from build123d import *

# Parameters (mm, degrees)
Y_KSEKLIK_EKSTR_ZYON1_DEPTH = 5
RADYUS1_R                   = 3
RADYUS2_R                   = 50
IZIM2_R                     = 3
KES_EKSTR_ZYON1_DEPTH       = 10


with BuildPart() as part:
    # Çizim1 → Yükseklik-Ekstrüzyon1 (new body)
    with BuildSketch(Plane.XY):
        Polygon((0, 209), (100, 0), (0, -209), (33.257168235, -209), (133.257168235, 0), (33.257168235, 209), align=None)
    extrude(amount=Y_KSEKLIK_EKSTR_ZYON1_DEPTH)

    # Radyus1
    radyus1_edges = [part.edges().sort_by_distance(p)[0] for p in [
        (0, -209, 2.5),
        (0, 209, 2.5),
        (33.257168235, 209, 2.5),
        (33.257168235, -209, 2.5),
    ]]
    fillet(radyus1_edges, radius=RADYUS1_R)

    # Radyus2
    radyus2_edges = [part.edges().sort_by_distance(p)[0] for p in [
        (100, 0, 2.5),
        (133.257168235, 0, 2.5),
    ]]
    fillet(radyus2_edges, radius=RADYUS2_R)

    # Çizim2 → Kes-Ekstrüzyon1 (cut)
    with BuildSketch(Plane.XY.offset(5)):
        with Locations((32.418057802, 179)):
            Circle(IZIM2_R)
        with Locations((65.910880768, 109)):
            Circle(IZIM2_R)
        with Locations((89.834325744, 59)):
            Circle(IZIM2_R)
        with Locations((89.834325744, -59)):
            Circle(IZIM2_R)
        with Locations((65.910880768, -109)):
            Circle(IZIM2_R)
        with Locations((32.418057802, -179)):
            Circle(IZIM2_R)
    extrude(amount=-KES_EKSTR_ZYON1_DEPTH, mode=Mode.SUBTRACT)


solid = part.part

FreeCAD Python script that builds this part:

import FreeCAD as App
import Part
import Sketcher
from FreeCAD import Vector


def edges_at(feature, points):
    """Names of the edges that pass closest to the given points."""
    edges = feature.Shape.Edges
    near = lambda p: min(range(len(edges)), key=lambda i: edges[i].distToShape(Part.Vertex(*p))[0])
    return sorted({f"Edge{near(p) + 1}" for p in points})

doc = App.newDocument("Part")
body = doc.addObject("PartDesign::Body", "Body")

# Sketch on XY plane
sketch1 = body.newObject("Sketcher::SketchObject", "Sketch")
sketch1.AttachmentSupport = (doc.getObject("XY_Plane"), [""])
sketch1.MapMode = "FlatFace"
sketch1.addGeometry(Part.LineSegment(Vector(0, 209, 0), Vector(100, 0, 0)), False)
sketch1.addGeometry(Part.LineSegment(Vector(100, 0, 0), Vector(0, -209, 0)), False)
sketch1.addGeometry(Part.LineSegment(Vector(0, -209, 0), Vector(33, -209, 0)), False)
sketch1.addGeometry(Part.LineSegment(Vector(33, -209, 0), Vector(133, 0, 0)), False)
sketch1.addGeometry(Part.LineSegment(Vector(133, 0, 0), Vector(33, 209, 0)), False)
sketch1.addGeometry(Part.LineSegment(Vector(33, 209, 0), Vector(0, 209, 0)), False)
sketch1.addConstraint(Sketcher.Constraint("Coincident", 0, 2, 1, 1))
sketch1.addConstraint(Sketcher.Constraint("Coincident", 1, 2, 2, 1))
sketch1.addConstraint(Sketcher.Constraint("Coincident", 2, 2, 3, 1))
sketch1.addConstraint(Sketcher.Constraint("Coincident", 3, 2, 4, 1))
sketch1.addConstraint(Sketcher.Constraint("Coincident", 4, 2, 5, 1))
sketch1.addConstraint(Sketcher.Constraint("Coincident", 5, 2, 0, 1))
sketch1.addConstraint(Sketcher.Constraint("Horizontal", 2))
sketch1.addConstraint(Sketcher.Constraint("Horizontal", 5))
sketch1.addConstraint(Sketcher.Constraint("Symmetric", 1, 2, 5, 2, -1, 1))
sketch1.addConstraint(Sketcher.Constraint("PointOnObject", 0, 2, -1))
sketch1.addConstraint(Sketcher.Constraint("PointOnObject", 1, 2, -2))
sketch1.addConstraint(Sketcher.Constraint("PointOnObject", 3, 2, -1))
sketch1.addConstraint(Sketcher.Constraint("Parallel", 1, 3))
sketch1.addConstraint(Sketcher.Constraint("Parallel", 0, 4))
sketch1.addConstraint(Sketcher.Constraint("DistanceX", -1, 1, 0, 2, 100.0))
sketch1.addConstraint(Sketcher.Constraint("DistanceY", 1, 2, -1, 1, 209.0))
sketch1.addConstraint(Sketcher.Constraint("DistanceX", 2, 1, 2, 2, 33.257168))
pad1 = body.newObject("PartDesign::Pad", "Pad")
pad1.Profile = sketch1
pad1.Length = 5
doc.recompute()

fillet = body.newObject("PartDesign::Fillet", "Fillet")
fillet.Base = (pad1, edges_at(pad1, [
    (0, -209, 2.5),
    (0, 209, 2.5),
    (33.257, 209, 2.5),
    (33.257, -209, 2.5),
]))
fillet.Radius = 3
doc.recompute()

fillet2 = body.newObject("PartDesign::Fillet", "Fillet001")
fillet2.Base = (fillet, edges_at(fillet, [(100, 0, 2.5), (133.257, 0, 2.5)]))
fillet2.Radius = 50

# Sketch on XY plane
sketch2 = body.newObject("Sketcher::SketchObject", "Sketch001")
sketch2.AttachmentSupport = (doc.getObject("XY_Plane"), [""])
sketch2.MapMode = "FlatFace"
sketch2.AttachmentOffset = App.Placement(Vector(0, 0, 5), App.Rotation())
sketch2.addGeometry(Part.Circle(Vector(32.4, 179, 0), Vector(0, 0, 1), 3), False)
sketch2.addGeometry(Part.Circle(Vector(65.9, 109, 0), Vector(0, 0, 1), 3), False)
sketch2.addGeometry(Part.Circle(Vector(89.8, 59, 0), Vector(0, 0, 1), 3), False)
sketch2.addGeometry(Part.Circle(Vector(89.8, -59, 0), Vector(0, 0, 1), 3), False)
sketch2.addGeometry(Part.Circle(Vector(65.9, -109, 0), Vector(0, 0, 1), 3), False)
sketch2.addGeometry(Part.Circle(Vector(32.4, -179, 0), Vector(0, 0, 1), 3), False)
sketch2.addConstraint(Sketcher.Constraint("Equal", 0, 1))
sketch2.addConstraint(Sketcher.Constraint("Equal", 1, 2))
sketch2.addConstraint(Sketcher.Constraint("Equal", 2, 3))
sketch2.addConstraint(Sketcher.Constraint("Equal", 3, 4))
sketch2.addConstraint(Sketcher.Constraint("Equal", 4, 5))
sketch2.addConstraint(Sketcher.Constraint("Symmetric", 2, 3, 3, 3, -1))
sketch2.addConstraint(Sketcher.Constraint("Symmetric", 1, 3, 4, 3, -1))
sketch2.addConstraint(Sketcher.Constraint("Symmetric", 0, 3, 5, 3, -1))
sketch2.addConstraint(Sketcher.Constraint("Diameter", 0, 6.0))
sketch2.addConstraint(Sketcher.Constraint("DistanceY", -1, 1, 0, 3, 179.0))
sketch2.addConstraint(Sketcher.Constraint("DistanceY", -1, 1, 1, 3, 109.0))
sketch2.addConstraint(Sketcher.Constraint("DistanceY", -1, 1, 2, 3, 59.0))
sketch2.addConstraint(Sketcher.Constraint("DistanceX", -1, 1, 1, 3, 65.910881))
sketch2.addConstraint(Sketcher.Constraint("DistanceX", -1, 1, 0, 3, 32.418058))
sketch2.addConstraint(Sketcher.Constraint("DistanceX", -1, 1, 2, 3, 89.834326))
pocket1 = body.newObject("PartDesign::Pocket", "Pocket")
pocket1.Profile = sketch2
pocket1.Length = 10

doc.recompute()
